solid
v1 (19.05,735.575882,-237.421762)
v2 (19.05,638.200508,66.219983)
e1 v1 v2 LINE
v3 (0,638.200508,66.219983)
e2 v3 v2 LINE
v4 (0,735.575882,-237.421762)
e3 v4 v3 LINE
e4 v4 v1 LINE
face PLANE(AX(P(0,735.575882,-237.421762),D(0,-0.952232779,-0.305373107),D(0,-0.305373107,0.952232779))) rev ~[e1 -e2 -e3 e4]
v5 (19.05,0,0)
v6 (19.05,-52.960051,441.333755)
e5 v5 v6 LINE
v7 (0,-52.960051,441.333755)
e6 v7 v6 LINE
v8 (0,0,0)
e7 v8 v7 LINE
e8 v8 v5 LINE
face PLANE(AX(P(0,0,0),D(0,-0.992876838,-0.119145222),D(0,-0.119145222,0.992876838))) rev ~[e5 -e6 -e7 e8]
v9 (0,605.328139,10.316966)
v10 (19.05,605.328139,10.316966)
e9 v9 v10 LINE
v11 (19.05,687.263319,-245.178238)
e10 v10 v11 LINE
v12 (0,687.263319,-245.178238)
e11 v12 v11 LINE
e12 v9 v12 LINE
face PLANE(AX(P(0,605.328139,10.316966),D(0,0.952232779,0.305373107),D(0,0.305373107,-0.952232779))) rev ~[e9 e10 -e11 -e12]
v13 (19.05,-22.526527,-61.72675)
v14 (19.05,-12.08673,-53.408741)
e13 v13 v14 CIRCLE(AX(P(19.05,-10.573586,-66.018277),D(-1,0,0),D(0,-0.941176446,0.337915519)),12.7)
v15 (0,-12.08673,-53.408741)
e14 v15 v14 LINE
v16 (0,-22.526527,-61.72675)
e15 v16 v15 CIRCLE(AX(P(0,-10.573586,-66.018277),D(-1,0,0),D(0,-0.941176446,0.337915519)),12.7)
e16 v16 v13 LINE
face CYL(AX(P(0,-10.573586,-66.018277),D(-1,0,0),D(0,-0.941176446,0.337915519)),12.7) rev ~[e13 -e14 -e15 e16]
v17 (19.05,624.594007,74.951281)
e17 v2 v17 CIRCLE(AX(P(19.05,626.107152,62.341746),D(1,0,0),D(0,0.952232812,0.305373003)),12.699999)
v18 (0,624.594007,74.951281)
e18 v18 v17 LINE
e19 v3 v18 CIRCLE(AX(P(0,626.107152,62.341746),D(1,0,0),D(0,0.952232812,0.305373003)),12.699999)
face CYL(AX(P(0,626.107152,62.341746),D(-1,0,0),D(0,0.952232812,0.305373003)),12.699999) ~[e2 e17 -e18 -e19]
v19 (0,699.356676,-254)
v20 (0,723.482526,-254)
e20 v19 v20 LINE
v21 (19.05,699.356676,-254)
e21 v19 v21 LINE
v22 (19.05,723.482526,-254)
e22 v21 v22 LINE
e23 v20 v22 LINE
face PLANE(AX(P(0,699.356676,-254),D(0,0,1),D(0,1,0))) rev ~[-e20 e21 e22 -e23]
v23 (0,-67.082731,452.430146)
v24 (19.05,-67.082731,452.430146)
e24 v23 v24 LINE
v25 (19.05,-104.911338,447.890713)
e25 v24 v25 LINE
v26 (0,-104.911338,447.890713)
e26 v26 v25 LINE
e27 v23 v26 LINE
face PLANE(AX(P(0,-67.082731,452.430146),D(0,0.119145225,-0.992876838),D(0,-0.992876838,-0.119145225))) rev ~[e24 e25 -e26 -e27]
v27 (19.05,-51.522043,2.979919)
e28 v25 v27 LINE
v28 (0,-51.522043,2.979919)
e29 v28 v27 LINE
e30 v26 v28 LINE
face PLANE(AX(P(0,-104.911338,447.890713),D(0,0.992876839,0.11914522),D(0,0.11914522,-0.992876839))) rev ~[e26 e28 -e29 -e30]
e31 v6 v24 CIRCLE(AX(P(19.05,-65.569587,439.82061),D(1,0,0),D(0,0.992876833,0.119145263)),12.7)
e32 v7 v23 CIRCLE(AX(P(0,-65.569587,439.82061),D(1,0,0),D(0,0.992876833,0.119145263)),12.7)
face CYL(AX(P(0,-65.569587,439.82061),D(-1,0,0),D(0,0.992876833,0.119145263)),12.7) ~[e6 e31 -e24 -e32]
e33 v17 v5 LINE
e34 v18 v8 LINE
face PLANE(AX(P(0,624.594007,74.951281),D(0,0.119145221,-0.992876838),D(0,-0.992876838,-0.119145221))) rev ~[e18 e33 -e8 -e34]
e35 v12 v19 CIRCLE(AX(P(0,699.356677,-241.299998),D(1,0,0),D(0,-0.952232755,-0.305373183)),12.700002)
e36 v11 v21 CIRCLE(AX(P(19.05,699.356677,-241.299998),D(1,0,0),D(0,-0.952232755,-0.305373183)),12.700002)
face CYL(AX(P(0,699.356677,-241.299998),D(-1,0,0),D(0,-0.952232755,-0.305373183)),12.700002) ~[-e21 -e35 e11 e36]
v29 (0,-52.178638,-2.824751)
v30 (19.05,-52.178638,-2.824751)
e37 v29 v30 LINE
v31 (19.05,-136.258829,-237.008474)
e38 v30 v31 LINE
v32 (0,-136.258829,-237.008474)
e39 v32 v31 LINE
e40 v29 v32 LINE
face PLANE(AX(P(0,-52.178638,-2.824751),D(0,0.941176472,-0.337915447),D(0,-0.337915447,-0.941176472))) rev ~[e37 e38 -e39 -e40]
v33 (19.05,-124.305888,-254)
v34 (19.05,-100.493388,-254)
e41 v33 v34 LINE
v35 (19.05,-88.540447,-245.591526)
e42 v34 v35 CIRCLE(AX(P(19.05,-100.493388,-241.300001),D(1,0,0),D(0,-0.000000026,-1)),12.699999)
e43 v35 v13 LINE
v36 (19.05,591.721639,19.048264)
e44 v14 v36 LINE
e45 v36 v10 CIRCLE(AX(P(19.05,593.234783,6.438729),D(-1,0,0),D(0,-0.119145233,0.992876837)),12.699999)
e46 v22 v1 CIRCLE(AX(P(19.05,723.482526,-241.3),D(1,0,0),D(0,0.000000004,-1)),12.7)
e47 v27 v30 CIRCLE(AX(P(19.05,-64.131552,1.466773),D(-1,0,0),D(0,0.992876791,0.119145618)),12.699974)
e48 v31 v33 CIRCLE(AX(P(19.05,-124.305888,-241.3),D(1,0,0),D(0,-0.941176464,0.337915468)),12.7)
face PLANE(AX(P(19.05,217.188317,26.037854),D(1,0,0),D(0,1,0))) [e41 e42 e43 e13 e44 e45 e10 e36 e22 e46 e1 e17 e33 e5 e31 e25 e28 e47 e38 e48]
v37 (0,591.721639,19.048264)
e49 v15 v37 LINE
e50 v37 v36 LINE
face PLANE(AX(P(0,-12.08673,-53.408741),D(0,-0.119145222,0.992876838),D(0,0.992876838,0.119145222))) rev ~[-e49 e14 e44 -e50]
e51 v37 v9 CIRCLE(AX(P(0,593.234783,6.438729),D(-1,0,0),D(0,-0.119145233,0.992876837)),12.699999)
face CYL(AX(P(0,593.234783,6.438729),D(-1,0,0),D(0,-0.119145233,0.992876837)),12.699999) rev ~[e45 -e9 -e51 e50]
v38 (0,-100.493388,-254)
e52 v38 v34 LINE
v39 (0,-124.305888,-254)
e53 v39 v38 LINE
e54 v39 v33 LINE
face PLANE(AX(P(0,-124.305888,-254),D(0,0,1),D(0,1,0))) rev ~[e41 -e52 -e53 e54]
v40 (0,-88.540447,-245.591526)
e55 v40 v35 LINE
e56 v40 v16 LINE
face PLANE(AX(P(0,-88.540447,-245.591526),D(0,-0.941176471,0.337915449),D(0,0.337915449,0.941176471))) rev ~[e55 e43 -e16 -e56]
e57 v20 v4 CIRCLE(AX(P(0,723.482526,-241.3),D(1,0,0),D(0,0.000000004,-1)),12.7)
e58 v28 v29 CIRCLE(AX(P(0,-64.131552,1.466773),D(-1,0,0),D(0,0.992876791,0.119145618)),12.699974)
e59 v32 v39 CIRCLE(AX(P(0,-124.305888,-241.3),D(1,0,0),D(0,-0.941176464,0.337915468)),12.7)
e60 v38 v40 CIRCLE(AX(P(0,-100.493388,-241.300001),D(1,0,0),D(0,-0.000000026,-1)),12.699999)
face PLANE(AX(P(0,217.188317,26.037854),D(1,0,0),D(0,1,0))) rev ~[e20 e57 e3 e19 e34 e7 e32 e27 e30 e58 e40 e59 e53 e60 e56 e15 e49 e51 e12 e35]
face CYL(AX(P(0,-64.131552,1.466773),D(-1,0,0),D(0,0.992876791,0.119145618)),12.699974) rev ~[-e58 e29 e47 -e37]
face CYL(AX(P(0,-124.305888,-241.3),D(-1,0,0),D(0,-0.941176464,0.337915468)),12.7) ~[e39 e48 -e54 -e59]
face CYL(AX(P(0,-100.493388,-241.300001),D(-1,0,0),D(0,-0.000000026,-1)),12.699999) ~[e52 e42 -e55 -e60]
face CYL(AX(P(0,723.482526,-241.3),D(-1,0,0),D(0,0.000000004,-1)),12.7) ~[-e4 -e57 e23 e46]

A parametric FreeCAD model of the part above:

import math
import FreeCAD as App
import Part
import Sketcher
from FreeCAD import Vector
Q = App.Units.Quantity

doc = App.newDocument("Part")
params = doc.addObject("Spreadsheet::Sheet", "Params")
for row, (alias, value) in enumerate([
    ("sketch1_radius", "0.5 in"),
    ("sketch1_length", "17.5 in"),
    ("sketch1_length2", "1.5 in"),
    ("sketch1_width", "0.9375 in"),
    ("pad1_length", "0.75 in"),
], start=1):
    params.set(f"A{row}", alias)
    params.set(f"B{row}", "=" + value)
    params.setAlias(f"B{row}", alias)

body = doc.addObject("PartDesign::Body", "Body")

# Sketch on YZ plane
sketch1 = body.newObject("Sketcher::SketchObject", "Sketch")
sketch1.AttachmentSupport = (doc.getObject("YZ_Plane"), [""])
sketch1.MapMode = "FlatFace"
sketch1.addGeometry([
    Part.LineSegment(Vector(736, -237, 0), Vector(638, 66, 0)),  # 0
    Part.ArcOfCircle(Part.Circle(Vector(626, 62, 0), Vector(0, 0, 1), 13), math.radians(18), math.radians(97)),  # 1
    Part.LineSegment(Vector(625, 75, 0), Vector(0, 0, 0)),  # 2
    Part.LineSegment(Vector(0, 0, 0), Vector(-53, 441, 0)),  # 3
    Part.ArcOfCircle(Part.Circle(Vector(-66, 440, 0), Vector(0, 0, 1), 13), math.radians(7), math.radians(97)),  # 4
    Part.LineSegment(Vector(-67, 452, 0), Vector(-105, 448, 0)),  # 5
    Part.LineSegment(Vector(-105, 448, 0), Vector(-52, 3, 0)),  # 6
    Part.ArcOfCircle(Part.Circle(Vector(-64, 1, 0), Vector(0, 0, 1), 13), math.radians(-20), math.radians(7)),  # 7
    Part.LineSegment(Vector(-52, -3, 0), Vector(-136, -237, 0)),  # 8
    Part.ArcOfCircle(Part.Circle(Vector(-124, -241, 0), Vector(0, 0, 1), 13), math.radians(160), math.radians(270)),  # 9
    Part.LineSegment(Vector(-124, -254, 0), Vector(-100, -254, 0)),  # 10
    Part.ArcOfCircle(Part.Circle(Vector(-100, -241, 0), Vector(0, 0, 1), 13), math.radians(-90), math.radians(-20)),  # 11
    Part.LineSegment(Vector(-89, -246, 0), Vector(-23, -62, 0)),  # 12
    Part.ArcOfCircle(Part.Circle(Vector(-11, -66, 0), Vector(0, 0, 1), 13), math.radians(97), math.radians(160)),  # 13
    Part.LineSegment(Vector(-12, -53, 0), Vector(592, 19, 0)),  # 14
    Part.ArcOfCircle(Part.Circle(Vector(593, 6, 0), Vector(0, 0, 1), 13), math.radians(18), math.radians(97)),  # 15
    Part.LineSegment(Vector(605, 10, 0), Vector(687, -245, 0)),  # 16
    Part.ArcOfCircle(Part.Circle(Vector(699, -241, 0), Vector(0, 0, 1), 13), math.radians(-162), math.radians(-90)),  # 17
    Part.LineSegment(Vector(699, -254, 0), Vector(723, -254, 0)),  # 18
    Part.ArcOfCircle(Part.Circle(Vector(723, -241, 0), Vector(0, 0, 1), 13), math.radians(-90), math.radians(18)),  # 19
], False)
sketch1.addConstraint([
    Sketcher.Constraint("Tangent", 0, 2, 1, 1),
    Sketcher.Constraint("Tangent", 1, 2, 2, 1),
    Sketcher.Constraint("Coincident", 2, 2, 3, 1),
    Sketcher.Constraint("Tangent", 3, 2, 4, 1),
    Sketcher.Constraint("Tangent", 4, 2, 5, 1),
    Sketcher.Constraint("Coincident", 5, 2, 6, 1),
    Sketcher.Constraint("Tangent", 6, 2, 7, 2),
    Sketcher.Constraint("Tangent", 7, 1, 8, 1),
    Sketcher.Constraint("Tangent", 8, 2, 9, 1),
    Sketcher.Constraint("Tangent", 9, 2, 10, 1),
    Sketcher.Constraint("Tangent", 10, 2, 11, 1),
    Sketcher.Constraint("Tangent", 11, 2, 12, 1),
    Sketcher.Constraint("Tangent", 12, 2, 13, 2),
    Sketcher.Constraint("Tangent", 13, 1, 14, 1),
    Sketcher.Constraint("Tangent", 14, 2, 15, 2),
    Sketcher.Constraint("Tangent", 15, 1, 16, 1),
    Sketcher.Constraint("Tangent", 16, 2, 17, 1),
    Sketcher.Constraint("Tangent", 17, 2, 18, 1),
    Sketcher.Constraint("Tangent", 18, 2, 19, 1),
    Sketcher.Constraint("Tangent", 19, 2, 0, 1),
    Sketcher.Constraint("Horizontal", 10),
    Sketcher.Constraint("Horizontal", 18),
    Sketcher.Constraint("Coincident", 2, 2, -1, 1),
    Sketcher.Constraint("Equal", 1, 4),
    Sketcher.Constraint("Equal", 4, 9),
    Sketcher.Constraint("Equal", 9, 11),
    Sketcher.Constraint("Equal", 11, 13),
    Sketcher.Constraint("Equal", 13, 15),
    Sketcher.Constraint("Equal", 13, 17),
    Sketcher.Constraint("Equal", 15, 19),
    Sketcher.Constraint("Perpendicular", 2, 3),
    Sketcher.Constraint("Perpendicular", 3, 5),
    Sketcher.Constraint("Perpendicular", 5, 6),
    Sketcher.Constraint("Parallel", 8, 12),
    Sketcher.Constraint("Perpendicular", 6, 14),
    Sketcher.Constraint("Parallel", 0, 16),
    Sketcher.Constraint("Horizontal", 11, 3, 19, 3),
    Sketcher.Constraint("Radius", 1, Q("0.5 in")),
    Sketcher.Constraint("DistanceY", 9, 2, -1, 1, Q("10 in")),
    Sketcher.Constraint("Distance", 3, Q("17.5 in")),
    Sketcher.Constraint("Distance", 5, Q("1.5 in")),
    Sketcher.Constraint("DistanceX", 10, 1, 10, 2, Q("0.9375 in")),
    Sketcher.Constraint("DistanceX", -1, 1, 15, 3, Q("23.3557001 in")),
    Sketcher.Constraint("Radius", 7, 12.699974),
    Sketcher.Constraint("DistanceX", 14, 2, 17, 3, Q("4.2375999 in")),
    Sketcher.Constraint("Distance", 6, 448.102702),
    Sketcher.Constraint("DistanceX", 18, 1, 18, 2, 24.12585),
    Sketcher.Constraint("DistanceX", 9, 3, 4, 3, 58.736301),
    Sketcher.Constraint("DistanceX", 11, 3, 13, 3, 89.919802),
    Sketcher.Constraint("DistanceX", 7, 3, 3, 2, 11.171501),
])
sketch1.setExpression("Constraints[37]", "Params.sketch1_radius")
sketch1.setExpression("Constraints[39]", "Params.sketch1_length")
sketch1.setExpression("Constraints[40]", "Params.sketch1_length2")
sketch1.setExpression("Constraints[41]", "Params.sketch1_width")
pad1 = body.newObject("PartDesign::Pad", "Pad")
pad1.Profile = sketch1
pad1.setExpression("Length", "Params.pad1_length")

doc.recompute()
